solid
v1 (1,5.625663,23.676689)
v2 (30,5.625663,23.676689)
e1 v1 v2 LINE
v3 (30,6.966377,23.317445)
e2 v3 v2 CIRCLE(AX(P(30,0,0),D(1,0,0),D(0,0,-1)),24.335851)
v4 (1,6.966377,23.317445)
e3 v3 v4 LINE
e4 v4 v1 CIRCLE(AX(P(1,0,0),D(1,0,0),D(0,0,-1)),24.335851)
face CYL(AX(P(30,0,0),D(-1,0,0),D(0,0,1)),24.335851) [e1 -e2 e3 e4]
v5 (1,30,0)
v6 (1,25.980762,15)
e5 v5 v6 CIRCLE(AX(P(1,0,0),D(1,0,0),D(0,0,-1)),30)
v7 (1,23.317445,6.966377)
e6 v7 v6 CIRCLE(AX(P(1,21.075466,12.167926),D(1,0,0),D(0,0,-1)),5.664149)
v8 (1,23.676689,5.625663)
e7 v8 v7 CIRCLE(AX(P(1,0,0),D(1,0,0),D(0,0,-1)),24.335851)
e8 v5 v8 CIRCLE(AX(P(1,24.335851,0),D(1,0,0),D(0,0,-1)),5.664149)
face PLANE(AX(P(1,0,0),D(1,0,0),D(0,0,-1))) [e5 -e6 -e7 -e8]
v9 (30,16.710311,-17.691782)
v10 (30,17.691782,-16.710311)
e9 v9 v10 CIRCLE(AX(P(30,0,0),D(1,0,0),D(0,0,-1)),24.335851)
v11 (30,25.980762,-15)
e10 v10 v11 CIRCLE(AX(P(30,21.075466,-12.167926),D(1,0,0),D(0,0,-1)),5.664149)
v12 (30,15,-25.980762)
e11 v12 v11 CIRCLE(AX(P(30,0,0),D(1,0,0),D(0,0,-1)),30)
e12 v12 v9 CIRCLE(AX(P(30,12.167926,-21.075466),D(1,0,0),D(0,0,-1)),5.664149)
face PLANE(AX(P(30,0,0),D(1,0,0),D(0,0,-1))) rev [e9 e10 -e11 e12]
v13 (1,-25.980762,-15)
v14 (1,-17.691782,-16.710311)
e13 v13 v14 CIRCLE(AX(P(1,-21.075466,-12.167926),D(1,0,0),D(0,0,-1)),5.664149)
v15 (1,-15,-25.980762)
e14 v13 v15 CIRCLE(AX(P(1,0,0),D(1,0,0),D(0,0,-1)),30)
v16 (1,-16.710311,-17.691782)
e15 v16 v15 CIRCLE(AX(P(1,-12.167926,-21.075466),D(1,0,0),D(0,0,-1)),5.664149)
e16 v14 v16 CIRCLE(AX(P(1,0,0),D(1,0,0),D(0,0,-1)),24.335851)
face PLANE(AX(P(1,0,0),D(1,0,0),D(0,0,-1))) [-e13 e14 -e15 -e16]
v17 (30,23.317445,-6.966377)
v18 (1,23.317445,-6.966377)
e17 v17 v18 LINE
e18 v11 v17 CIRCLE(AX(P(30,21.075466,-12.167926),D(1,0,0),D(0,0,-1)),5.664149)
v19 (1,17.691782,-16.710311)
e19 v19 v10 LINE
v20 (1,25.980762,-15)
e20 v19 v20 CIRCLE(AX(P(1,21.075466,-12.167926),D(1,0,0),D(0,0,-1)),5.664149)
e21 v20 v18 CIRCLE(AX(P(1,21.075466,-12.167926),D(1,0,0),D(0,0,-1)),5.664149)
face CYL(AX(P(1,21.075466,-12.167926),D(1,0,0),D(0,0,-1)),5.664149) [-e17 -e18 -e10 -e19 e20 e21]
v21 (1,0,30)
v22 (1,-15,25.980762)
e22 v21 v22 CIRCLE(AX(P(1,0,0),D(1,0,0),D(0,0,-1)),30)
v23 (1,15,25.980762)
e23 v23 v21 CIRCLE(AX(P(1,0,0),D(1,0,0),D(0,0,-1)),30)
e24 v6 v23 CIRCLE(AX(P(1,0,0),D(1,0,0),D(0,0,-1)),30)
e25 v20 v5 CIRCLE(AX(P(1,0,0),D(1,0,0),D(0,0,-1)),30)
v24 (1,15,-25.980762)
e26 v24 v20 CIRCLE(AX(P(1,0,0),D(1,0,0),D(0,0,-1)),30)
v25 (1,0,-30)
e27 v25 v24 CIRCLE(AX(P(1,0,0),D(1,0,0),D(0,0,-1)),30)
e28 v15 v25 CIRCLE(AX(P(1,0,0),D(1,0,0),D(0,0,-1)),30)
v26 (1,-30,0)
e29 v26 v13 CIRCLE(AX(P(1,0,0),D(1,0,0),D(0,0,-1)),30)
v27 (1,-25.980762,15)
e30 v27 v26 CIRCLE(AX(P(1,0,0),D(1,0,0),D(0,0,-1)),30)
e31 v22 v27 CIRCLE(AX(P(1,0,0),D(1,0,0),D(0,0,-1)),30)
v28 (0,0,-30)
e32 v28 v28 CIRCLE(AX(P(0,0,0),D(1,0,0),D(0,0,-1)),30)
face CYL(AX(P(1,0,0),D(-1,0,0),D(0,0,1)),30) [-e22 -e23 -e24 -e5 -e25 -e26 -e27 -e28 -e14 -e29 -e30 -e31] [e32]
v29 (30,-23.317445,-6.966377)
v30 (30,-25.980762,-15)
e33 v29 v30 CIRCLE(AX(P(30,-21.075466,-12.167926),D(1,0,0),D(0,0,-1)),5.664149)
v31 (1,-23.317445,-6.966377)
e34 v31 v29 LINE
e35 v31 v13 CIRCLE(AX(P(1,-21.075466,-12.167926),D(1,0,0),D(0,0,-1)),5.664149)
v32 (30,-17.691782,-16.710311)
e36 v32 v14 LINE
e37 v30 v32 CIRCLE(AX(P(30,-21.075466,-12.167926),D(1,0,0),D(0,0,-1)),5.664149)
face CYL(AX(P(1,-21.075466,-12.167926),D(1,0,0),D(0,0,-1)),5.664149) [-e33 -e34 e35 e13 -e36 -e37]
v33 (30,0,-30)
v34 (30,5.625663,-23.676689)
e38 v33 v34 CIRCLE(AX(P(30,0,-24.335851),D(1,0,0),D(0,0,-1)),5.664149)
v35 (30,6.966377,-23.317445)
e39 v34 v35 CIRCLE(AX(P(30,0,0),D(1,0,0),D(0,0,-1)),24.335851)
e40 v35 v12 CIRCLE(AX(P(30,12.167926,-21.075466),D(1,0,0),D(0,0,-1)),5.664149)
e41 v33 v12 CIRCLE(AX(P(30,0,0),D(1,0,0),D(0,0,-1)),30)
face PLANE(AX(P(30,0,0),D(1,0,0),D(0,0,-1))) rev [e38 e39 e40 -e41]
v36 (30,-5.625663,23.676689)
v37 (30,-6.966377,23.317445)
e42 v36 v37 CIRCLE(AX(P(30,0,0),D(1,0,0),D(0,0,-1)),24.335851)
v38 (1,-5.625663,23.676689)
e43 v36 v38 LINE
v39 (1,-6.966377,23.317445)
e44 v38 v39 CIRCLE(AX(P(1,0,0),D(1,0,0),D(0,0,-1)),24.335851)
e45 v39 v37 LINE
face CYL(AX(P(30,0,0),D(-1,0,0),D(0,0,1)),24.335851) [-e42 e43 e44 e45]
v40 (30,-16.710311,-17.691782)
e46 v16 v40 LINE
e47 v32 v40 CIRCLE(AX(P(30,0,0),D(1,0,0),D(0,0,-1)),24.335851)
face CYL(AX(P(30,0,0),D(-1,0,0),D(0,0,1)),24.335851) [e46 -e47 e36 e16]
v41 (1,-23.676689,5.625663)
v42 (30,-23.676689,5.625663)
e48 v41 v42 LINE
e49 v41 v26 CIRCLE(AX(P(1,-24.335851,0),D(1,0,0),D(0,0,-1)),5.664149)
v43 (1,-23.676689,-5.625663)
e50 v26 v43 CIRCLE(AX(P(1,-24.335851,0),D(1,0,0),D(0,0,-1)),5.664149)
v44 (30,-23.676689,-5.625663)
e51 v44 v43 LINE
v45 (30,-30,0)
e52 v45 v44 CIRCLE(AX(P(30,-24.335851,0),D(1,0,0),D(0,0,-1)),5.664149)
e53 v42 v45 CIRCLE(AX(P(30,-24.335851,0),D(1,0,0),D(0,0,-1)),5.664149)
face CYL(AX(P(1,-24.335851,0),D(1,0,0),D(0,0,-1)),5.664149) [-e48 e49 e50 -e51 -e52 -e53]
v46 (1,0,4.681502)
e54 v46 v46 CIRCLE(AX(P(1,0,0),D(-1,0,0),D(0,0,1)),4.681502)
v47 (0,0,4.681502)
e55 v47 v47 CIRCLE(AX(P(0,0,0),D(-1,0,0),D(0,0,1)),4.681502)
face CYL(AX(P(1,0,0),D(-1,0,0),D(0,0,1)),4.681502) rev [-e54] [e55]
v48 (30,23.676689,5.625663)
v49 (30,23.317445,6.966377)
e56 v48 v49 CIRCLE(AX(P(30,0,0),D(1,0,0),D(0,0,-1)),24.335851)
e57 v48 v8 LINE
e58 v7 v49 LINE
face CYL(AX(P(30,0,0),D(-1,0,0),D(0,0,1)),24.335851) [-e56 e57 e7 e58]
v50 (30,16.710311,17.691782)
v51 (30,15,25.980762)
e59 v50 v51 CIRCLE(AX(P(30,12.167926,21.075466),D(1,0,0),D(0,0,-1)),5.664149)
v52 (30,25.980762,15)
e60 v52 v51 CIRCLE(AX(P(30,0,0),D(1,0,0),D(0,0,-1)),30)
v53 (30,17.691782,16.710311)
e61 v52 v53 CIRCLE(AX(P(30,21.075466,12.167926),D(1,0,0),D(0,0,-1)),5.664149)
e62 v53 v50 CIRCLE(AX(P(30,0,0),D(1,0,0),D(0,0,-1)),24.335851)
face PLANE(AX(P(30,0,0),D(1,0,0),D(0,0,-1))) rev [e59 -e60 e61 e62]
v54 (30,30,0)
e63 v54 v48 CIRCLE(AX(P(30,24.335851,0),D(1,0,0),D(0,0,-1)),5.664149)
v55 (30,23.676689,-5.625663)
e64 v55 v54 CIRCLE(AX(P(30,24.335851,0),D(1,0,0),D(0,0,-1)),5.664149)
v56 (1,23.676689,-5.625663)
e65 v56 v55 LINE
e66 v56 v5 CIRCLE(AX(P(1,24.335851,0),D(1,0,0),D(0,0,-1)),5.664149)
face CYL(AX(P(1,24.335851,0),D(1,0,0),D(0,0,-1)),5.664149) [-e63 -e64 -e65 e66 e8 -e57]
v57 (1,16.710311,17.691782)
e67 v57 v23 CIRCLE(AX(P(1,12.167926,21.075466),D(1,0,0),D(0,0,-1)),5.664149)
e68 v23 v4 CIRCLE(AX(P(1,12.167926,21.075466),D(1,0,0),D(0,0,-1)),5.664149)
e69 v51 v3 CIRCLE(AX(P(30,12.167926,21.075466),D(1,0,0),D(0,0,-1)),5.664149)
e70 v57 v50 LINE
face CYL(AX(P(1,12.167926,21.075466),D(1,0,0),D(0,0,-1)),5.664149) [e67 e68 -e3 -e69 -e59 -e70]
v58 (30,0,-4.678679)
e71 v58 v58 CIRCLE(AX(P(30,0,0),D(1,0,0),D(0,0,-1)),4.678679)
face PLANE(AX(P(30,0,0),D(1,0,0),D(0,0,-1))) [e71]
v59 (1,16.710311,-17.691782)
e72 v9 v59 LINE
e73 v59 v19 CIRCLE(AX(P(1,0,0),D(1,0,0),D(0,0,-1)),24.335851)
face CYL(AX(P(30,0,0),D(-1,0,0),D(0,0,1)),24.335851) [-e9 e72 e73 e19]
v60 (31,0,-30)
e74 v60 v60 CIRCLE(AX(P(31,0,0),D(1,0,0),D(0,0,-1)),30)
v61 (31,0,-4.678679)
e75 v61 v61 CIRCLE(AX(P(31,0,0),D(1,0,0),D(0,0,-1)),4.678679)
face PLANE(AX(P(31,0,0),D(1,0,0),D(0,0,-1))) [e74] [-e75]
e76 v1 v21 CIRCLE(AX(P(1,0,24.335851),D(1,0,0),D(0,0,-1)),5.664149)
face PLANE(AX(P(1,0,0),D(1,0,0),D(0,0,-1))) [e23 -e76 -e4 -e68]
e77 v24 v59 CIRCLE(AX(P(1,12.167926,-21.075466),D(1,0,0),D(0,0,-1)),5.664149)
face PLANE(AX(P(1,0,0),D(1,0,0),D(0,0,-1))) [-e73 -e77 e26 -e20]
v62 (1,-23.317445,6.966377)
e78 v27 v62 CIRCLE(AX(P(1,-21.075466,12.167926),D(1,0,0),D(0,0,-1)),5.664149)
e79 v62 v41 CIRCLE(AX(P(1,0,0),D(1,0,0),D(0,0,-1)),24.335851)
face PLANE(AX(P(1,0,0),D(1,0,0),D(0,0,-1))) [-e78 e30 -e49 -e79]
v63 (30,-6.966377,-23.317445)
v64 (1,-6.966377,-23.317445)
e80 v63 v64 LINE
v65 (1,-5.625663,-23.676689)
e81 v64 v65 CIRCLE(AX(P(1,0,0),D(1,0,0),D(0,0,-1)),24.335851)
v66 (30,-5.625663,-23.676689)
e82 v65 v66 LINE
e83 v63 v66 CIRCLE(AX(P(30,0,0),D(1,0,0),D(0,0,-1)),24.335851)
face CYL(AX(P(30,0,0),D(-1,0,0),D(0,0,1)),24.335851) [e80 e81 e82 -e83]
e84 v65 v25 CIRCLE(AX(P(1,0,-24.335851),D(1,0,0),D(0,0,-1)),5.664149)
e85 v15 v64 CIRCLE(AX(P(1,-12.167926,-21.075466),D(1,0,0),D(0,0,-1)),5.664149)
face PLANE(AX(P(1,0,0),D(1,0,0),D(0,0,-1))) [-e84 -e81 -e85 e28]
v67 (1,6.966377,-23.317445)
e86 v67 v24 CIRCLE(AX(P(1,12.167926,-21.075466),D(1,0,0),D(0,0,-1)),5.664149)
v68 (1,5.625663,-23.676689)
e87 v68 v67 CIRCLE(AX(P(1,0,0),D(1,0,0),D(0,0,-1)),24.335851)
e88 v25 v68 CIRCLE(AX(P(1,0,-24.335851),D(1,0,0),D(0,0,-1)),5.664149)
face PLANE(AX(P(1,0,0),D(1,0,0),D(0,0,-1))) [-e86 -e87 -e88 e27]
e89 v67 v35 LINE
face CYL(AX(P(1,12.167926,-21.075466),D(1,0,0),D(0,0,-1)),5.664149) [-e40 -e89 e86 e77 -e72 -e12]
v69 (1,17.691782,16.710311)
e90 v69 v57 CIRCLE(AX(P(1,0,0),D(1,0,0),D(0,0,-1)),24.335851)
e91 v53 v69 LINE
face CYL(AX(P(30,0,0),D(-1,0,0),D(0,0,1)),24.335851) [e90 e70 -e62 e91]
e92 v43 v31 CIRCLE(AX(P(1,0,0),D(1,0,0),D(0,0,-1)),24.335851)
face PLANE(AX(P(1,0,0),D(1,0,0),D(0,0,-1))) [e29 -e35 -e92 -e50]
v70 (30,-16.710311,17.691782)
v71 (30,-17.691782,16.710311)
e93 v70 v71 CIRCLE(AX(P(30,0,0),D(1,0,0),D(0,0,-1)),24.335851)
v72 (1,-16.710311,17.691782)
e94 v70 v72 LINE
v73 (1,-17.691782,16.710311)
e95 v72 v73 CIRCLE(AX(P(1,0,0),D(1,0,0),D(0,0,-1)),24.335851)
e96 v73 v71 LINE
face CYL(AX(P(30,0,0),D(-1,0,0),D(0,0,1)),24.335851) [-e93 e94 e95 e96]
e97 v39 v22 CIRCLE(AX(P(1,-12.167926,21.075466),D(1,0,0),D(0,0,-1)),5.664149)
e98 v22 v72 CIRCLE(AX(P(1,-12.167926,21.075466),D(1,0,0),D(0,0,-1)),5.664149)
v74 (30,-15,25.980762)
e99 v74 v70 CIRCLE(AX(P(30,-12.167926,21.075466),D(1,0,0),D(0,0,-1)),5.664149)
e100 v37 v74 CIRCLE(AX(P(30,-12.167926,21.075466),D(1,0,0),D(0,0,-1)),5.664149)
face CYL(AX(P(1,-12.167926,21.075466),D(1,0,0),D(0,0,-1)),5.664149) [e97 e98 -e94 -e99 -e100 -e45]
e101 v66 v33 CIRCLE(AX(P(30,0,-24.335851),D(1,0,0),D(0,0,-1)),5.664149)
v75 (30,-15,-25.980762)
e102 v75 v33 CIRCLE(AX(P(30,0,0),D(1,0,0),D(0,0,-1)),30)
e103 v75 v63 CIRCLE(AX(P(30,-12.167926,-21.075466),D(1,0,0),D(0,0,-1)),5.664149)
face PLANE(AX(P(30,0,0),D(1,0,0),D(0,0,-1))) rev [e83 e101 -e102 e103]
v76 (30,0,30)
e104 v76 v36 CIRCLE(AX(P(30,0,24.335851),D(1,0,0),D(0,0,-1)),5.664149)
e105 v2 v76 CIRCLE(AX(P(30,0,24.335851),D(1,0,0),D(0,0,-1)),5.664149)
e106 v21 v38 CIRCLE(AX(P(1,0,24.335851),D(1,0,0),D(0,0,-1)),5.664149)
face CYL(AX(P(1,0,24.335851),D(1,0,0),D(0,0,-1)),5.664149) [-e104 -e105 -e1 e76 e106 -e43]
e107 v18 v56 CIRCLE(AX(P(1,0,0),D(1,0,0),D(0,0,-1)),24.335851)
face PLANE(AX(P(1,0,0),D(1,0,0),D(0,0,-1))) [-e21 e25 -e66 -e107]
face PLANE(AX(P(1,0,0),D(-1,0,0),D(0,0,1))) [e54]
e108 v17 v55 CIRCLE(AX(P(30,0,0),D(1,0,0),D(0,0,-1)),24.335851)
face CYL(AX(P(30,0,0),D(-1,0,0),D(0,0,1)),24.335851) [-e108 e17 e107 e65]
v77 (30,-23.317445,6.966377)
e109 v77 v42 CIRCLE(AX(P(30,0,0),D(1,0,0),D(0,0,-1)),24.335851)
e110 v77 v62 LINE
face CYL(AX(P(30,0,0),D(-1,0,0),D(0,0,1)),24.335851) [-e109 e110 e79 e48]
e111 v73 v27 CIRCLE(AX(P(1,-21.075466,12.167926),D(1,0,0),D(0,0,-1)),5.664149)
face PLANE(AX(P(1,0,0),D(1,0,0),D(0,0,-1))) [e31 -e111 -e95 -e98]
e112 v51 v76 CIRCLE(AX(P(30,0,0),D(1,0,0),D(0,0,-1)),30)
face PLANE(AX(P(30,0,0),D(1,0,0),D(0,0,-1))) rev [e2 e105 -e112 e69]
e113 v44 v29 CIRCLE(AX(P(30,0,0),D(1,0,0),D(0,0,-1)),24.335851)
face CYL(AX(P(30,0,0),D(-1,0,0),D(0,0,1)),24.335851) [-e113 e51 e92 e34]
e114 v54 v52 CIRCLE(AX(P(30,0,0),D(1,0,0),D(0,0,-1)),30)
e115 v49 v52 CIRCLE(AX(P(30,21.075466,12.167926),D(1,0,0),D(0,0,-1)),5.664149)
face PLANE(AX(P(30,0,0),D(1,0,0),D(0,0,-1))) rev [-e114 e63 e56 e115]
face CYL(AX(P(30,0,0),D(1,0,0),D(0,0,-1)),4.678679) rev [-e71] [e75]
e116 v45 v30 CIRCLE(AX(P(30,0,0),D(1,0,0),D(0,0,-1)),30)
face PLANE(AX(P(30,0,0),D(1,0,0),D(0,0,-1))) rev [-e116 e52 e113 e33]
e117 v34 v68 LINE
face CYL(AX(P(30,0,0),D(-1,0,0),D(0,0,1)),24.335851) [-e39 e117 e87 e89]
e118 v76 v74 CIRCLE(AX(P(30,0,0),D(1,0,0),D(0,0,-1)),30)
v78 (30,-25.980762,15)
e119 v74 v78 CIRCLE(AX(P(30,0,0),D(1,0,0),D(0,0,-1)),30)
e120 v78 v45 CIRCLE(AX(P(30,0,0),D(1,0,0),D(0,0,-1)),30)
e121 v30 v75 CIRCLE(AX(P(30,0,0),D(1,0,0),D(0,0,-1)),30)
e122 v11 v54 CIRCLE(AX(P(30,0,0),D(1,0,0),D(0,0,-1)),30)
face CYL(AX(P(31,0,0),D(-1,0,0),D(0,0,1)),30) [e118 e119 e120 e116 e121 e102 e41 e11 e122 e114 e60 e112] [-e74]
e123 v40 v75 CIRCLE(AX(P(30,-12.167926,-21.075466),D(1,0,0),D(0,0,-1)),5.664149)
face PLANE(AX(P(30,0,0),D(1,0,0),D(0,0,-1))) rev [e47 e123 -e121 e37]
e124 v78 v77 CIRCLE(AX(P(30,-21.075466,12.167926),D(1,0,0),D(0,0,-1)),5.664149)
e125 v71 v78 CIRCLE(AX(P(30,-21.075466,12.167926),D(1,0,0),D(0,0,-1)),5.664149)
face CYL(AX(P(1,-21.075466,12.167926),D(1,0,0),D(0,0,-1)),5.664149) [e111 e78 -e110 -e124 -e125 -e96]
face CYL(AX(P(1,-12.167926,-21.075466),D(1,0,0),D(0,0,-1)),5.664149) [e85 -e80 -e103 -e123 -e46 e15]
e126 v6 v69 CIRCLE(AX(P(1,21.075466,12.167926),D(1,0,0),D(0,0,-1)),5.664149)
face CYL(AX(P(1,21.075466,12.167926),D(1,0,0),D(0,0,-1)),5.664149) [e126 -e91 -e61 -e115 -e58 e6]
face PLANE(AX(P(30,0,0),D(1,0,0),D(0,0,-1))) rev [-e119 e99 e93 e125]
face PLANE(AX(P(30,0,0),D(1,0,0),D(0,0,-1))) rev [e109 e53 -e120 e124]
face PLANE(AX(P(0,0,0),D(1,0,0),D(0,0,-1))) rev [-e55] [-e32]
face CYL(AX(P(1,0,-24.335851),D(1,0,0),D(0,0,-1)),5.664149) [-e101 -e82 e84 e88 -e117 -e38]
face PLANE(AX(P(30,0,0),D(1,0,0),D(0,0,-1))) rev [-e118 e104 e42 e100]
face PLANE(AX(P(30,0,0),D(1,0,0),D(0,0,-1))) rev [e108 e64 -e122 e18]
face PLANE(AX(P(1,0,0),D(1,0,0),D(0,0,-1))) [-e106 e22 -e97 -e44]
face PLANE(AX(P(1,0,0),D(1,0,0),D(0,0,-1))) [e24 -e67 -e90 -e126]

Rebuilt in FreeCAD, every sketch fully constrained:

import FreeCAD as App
import Part
import Sketcher

V = App.Vector
Q = App.Units.Quantity

doc = App.newDocument("Part")
params = doc.addObject("Spreadsheet::Sheet", "Params")
for row, (alias, value) in enumerate([
    ("sketch1_diameter", "60 mm"),
    ("pad1_length", "1 mm"),
    ("pad2_length", "29 mm"),
    ("pad3_length", "29 mm"),
    ("sketch4_diameter", "60 mm"),
    ("pad4_length", "1 mm"),
    ("pocket1_length", "1 mm"),
    ("pocket2_length", "1 mm"),
], start=1):
    params.set(f"A{row}", alias)
    params.set(f"B{row}", "=" + value)
    params.setAlias(f"B{row}", alias)

body = doc.addObject("PartDesign::Body", "Body")

# Sketch on YZ plane
sketch1 = body.newObject("Sketcher::SketchObject", "Sketch")
sketch1.AttachmentSupport = (doc.getObject("YZ_Plane"), [""])
sketch1.MapMode = "FlatFace"
sketch1.addGeometry(Part.Circle(V(0, 0, 0), V(0, 0, 1), 30), False)
sketch1.addConstraint([
    Sketcher.Constraint("Coincident", 0, 3, -1, 1),
    Sketcher.Constraint("Diameter", 0, Q("60 mm")),
])
sketch1.setExpression("Constraints[1]", "Params.sketch1_diameter")
pad1 = body.newObject("PartDesign::Pad", "Pad")
pad1.Profile = sketch1
pad1.setExpression("Length", "Params.pad1_length")

# Sketch on YZ plane
sketch2 = body.newObject("Sketcher::SketchObject", "Sketch001")
sketch2.AttachmentSupport = (doc.getObject("YZ_Plane"), [""])
sketch2.MapMode = "FlatFace"
sketch2.AttachmentOffset = App.Placement(V(0, 0, 1), App.Rotation())
sketch2.addGeometry(Part.Circle(V(0, 0, 0), V(0, 0, 1), 24.335851), False)
sketch2.addConstraint([
    Sketcher.Constraint("Coincident", 0, 3, -1, 1),
    Sketcher.Constraint("Diameter", 0, Q("48.671703 mm")),
])
pad2 = body.newObject("PartDesign::Pad", "Pad001")
pad2.Profile = sketch2
pad2.setExpression("Length", "Params.pad2_length")

# Sketch on YZ plane
sketch3 = body.newObject("Sketcher::SketchObject", "Sketch002")
sketch3.AttachmentSupport = (doc.getObject("YZ_Plane"), [""])
sketch3.MapMode = "FlatFace"
sketch3.AttachmentOffset = App.Placement(V(0, 0, 30), App.Rotation())
sketch3.addGeometry([
    Part.Circle(V(24.335851, 0, 0), V(0, 0, 1), 5.664149),  # 0
    Part.Circle(V(21.075466, -12.167926, 0), V(0, 0, 1), 5.664149),  # 1
    Part.Circle(V(12.167926, -21.075466, 0), V(0, 0, 1), 5.664149),  # 2
    Part.Circle(V(0, -24.335851, 0), V(0, 0, 1), 5.664149),  # 3
    Part.Circle(V(-12.167926, -21.075466, 0), V(0, 0, 1), 5.664149),  # 4
    Part.Circle(V(-21.075466, -12.167926, 0), V(0, 0, 1), 5.664149),  # 5
    Part.Circle(V(-24.335851, 0, 0), V(0, 0, 1), 5.664149),  # 6
    Part.Circle(V(-21.075466, 12.167926, 0), V(0, 0, 1), 5.664149),  # 7
    Part.Circle(V(-12.167926, 21.075466, 0), V(0, 0, 1), 5.664149),  # 8
    Part.Circle(V(0, 24.335851, 0), V(0, 0, 1), 5.664149),  # 9
    Part.Circle(V(12.167926, 21.075466, 0), V(0, 0, 1), 5.664149),  # 10
    Part.Circle(V(21.075466, 12.167926, 0), V(0, 0, 1), 5.664149),  # 11
], False)
sketch3.addConstraint([
    Sketcher.Constraint("Equal", 0, 1),
    Sketcher.Constraint("Equal", 1, 2),
    Sketcher.Constraint("Equal", 2, 3),
    Sketcher.Constraint("Equal", 3, 4),
    Sketcher.Constraint("Equal", 4, 5),
    Sketcher.Constraint("Equal", 5, 6),
    Sketcher.Constraint("Equal", 6, 7),
    Sketcher.Constraint("Equal", 7, 8),
    Sketcher.Constraint("Equal", 8, 9),
    Sketcher.Constraint("Equal", 9, 10),
    Sketcher.Constraint("Equal", 10, 11),
    Sketcher.Constraint("Symmetric", 0, 3, 6, 3, -1, 1),
    Sketcher.Constraint("Symmetric", 1, 3, 7, 3, -1, 1),
    Sketcher.Constraint("Symmetric", 2, 3, 8, 3, -1, 1),
    Sketcher.Constraint("Symmetric", 3, 3, 9, 3, -1, 1),
    Sketcher.Constraint("Symmetric", 4, 3, 10, 3, -1, 1),
    Sketcher.Constraint("Symmetric", 5, 3, 11, 3, -1, 1),
    Sketcher.Constraint("Symmetric", 2, 3, 4, 3, -2),
    Sketcher.Constraint("Symmetric", 1, 3, 5, 3, -2),
    Sketcher.Constraint("PointOnObject", 0, 3, -1),
    Sketcher.Constraint("PointOnObject", 3, 3, -2),
    Sketcher.Constraint("Diameter", 0, Q("11.328297 mm")),
    Sketcher.Constraint("DistanceX", -1, 1, 0, 3, Q("24.335851 mm")),
    Sketcher.Constraint("DistanceY", 3, 3, -1, 1, Q("24.335851 mm")),
    Sketcher.Constraint("DistanceX", 2, 3, 1, 3, Q("8.90754 mm")),
    Sketcher.Constraint("DistanceY", 2, 3, 1, 3, Q("8.90754 mm")),
    Sketcher.Constraint("DistanceX", 4, 3, 2, 3, Q("24.335851 mm")),
    Sketcher.Constraint("DistanceY", 5, 3, 7, 3, Q("24.335851 mm")),
])
pad3 = body.newObject("PartDesign::Pad", "Pad002")
pad3.Profile = sketch3
pad3.setExpression("Length", "Params.pad3_length")
pad3.Reversed = True

# Sketch on YZ plane
sketch4 = body.newObject("Sketcher::SketchObject", "Sketch003")
sketch4.AttachmentSupport = (doc.getObject("YZ_Plane"), [""])
sketch4.MapMode = "FlatFace"
sketch4.AttachmentOffset = App.Placement(V(0, 0, 30), App.Rotation())
sketch4.addGeometry(Part.Circle(V(0, 0, 0), V(0, 0, 1), 30), False)
sketch4.addConstraint([
    Sketcher.Constraint("Coincident", 0, 3, -1, 1),
    Sketcher.Constraint("Diameter", 0, Q("60 mm")),
])
sketch4.setExpression("Constraints[1]", "Params.sketch4_diameter")
pad4 = body.newObject("PartDesign::Pad", "Pad003")
pad4.Profile = sketch4
pad4.setExpression("Length", "Params.pad4_length")

# Sketch on YZ plane
sketch5 = body.newObject("Sketcher::SketchObject", "Sketch004")
sketch5.AttachmentSupport = (doc.getObject("YZ_Plane"), [""])
sketch5.MapMode = "FlatFace"
sketch5.addGeometry(Part.Circle(V(0, 0, 0), V(0, 0, 1), 4.681502), False)
sketch5.addConstraint([
    Sketcher.Constraint("Coincident", 0, 3, -1, 1),
    Sketcher.Constraint("Diameter", 0, Q("9.363003 mm")),
])
pocket1 = body.newObject("PartDesign::Pocket", "Pocket")
pocket1.Profile = sketch5
pocket1.setExpression("Length", "Params.pocket1_length")
pocket1.Reversed = True

# Sketch on YZ plane
sketch6 = body.newObject("Sketcher::SketchObject", "Sketch005")
sketch6.AttachmentSupport = (doc.getObject("YZ_Plane"), [""])
sketch6.MapMode = "FlatFace"
sketch6.AttachmentOffset = App.Placement(V(0, 0, 31), App.Rotation())
sketch6.addGeometry(Part.Circle(V(0, 0, 0), V(0, 0, 1), 4.678679), False)
sketch6.addConstraint([
    Sketcher.Constraint("Coincident", 0, 3, -1, 1),
    Sketcher.Constraint("Diameter", 0, Q("9.357359 mm")),
])
pocket2 = body.newObject("PartDesign::Pocket", "Pocket001")
pocket2.Profile = sketch6
pocket2.setExpression("Length", "Params.pocket2_length")

doc.recompute()
